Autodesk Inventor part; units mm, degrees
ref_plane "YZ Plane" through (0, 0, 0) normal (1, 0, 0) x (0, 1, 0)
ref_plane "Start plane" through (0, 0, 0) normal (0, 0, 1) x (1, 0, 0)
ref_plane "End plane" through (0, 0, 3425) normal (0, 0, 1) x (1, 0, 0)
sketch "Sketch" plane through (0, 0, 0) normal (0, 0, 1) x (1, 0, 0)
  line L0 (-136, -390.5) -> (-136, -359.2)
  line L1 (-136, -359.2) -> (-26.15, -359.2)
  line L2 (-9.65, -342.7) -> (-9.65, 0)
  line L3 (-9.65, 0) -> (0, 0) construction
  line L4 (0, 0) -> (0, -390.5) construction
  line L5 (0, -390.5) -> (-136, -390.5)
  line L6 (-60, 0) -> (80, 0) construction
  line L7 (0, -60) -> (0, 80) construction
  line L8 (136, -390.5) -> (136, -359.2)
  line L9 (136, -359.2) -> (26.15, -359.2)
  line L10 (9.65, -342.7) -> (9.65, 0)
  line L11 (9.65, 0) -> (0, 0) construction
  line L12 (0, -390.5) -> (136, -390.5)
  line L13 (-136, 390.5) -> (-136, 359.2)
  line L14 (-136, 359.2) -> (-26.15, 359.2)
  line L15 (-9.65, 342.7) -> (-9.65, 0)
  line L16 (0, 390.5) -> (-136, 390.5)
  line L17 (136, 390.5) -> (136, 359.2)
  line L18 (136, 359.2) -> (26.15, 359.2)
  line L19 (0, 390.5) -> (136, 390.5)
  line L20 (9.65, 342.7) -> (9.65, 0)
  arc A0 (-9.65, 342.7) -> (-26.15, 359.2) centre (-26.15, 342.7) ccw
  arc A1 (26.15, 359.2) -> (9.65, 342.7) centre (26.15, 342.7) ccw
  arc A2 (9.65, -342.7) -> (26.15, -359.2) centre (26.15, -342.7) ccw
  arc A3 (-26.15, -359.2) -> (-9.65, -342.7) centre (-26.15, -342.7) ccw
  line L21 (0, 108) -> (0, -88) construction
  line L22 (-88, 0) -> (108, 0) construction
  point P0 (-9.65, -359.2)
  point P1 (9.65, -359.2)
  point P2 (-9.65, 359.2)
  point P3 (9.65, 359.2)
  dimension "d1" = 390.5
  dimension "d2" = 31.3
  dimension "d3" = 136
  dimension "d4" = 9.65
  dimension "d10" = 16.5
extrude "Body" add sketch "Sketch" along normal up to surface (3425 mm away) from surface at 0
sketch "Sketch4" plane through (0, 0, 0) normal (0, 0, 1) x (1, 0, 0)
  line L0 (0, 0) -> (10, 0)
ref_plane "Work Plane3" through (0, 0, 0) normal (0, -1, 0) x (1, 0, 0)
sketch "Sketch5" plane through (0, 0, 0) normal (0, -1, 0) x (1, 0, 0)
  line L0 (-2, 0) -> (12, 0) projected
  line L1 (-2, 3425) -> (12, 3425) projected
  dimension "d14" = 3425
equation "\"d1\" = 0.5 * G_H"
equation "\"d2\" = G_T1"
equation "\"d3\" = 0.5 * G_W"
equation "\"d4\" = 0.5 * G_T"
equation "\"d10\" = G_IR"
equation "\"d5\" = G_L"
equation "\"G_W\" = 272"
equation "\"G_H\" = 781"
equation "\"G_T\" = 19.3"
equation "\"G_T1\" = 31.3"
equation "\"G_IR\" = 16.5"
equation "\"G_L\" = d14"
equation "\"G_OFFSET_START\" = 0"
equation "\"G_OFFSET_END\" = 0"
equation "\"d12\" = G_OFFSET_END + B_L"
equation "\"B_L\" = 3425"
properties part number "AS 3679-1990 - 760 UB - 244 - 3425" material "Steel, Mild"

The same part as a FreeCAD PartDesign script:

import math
import FreeCAD as App
import Part
import Sketcher
from FreeCAD import Vector
Q = App.Units.Quantity

doc = App.newDocument("Part")
body = doc.addObject("PartDesign::Body", "Body")

# Sketch on XY plane
sketch1 = body.newObject("Sketcher::SketchObject", "Sketch")
sketch1.AttachmentSupport = (doc.getObject("XY_Plane"), [""])
sketch1.MapMode = "FlatFace"
sketch1.addGeometry([
    Part.LineSegment(Vector(-136, -359.2, 0), Vector(-136, -390.5, 0)),  # 0
    Part.LineSegment(Vector(-136, -390.5, 0), Vector(136, -390.5, 0)),  # 1
    Part.LineSegment(Vector(136, -390.5, 0), Vector(136, -359.2, 0)),  # 2
    Part.LineSegment(Vector(136, -359.2, 0), Vector(26.15, -359.2, 0)),  # 3
    Part.ArcOfCircle(Part.Circle(Vector(26.15, -342.7, 0), Vector(0, 0, 1), 16.5), math.radians(180), math.radians(270)),  # 4
    Part.LineSegment(Vector(9.65, -342.7, 0), Vector(9.65, 342.7, 0)),  # 5
    Part.ArcOfCircle(Part.Circle(Vector(26.15, 342.7, 0), Vector(0, 0, 1), 16.5), math.radians(90), math.radians(180)),  # 6
    Part.LineSegment(Vector(26.15, 359.2, 0), Vector(136, 359.2, 0)),  # 7
    Part.LineSegment(Vector(136, 359.2, 0), Vector(136, 390.5, 0)),  # 8
    Part.LineSegment(Vector(136, 390.5, 0), Vector(-136, 390.5, 0)),  # 9
    Part.LineSegment(Vector(-136, 390.5, 0), Vector(-136, 359.2, 0)),  # 10
    Part.LineSegment(Vector(-136, 359.2, 0), Vector(-26.15, 359.2, 0)),  # 11
    Part.ArcOfCircle(Part.Circle(Vector(-26.15, 342.7, 0), Vector(0, 0, 1), 16.5), math.radians(0), math.radians(90)),  # 12
    Part.LineSegment(Vector(-9.65, 342.7, 0), Vector(-9.65, -342.7, 0)),  # 13
    Part.ArcOfCircle(Part.Circle(Vector(-26.15, -342.7, 0), Vector(0, 0, 1), 16.5), math.radians(-90), math.radians(0)),  # 14
    Part.LineSegment(Vector(-26.15, -359.2, 0), Vector(-136, -359.2, 0)),  # 15
], False)
sketch1.addConstraint([
    Sketcher.Constraint("Coincident", 0, 2, 1, 1),
    Sketcher.Constraint("Coincident", 1, 2, 2, 1),
    Sketcher.Constraint("Coincident", 2, 2, 3, 1),
    Sketcher.Constraint("Tangent", 3, 2, 4, 2),
    Sketcher.Constraint("Tangent", 4, 1, 5, 1),
    Sketcher.Constraint("Tangent", 5, 2, 6, 2),
    Sketcher.Constraint("Tangent", 6, 1, 7, 1),
    Sketcher.Constraint("Coincident", 7, 2, 8, 1),
    Sketcher.Constraint("Coincident", 8, 2, 9, 1),
    Sketcher.Constraint("Coincident", 9, 2, 10, 1),
    Sketcher.Constraint("Coincident", 10, 2, 11, 1),
    Sketcher.Constraint("Tangent", 11, 2, 12, 2),
    Sketcher.Constraint("Tangent", 12, 1, 13, 1),
    Sketcher.Constraint("Tangent", 13, 2, 14, 2),
    Sketcher.Constraint("Tangent", 14, 1, 15, 1),
    Sketcher.Constraint("Coincident", 15, 2, 0, 1),
    Sketcher.Constraint("Vertical", 0),
    Sketcher.Constraint("Horizontal", 1),
    Sketcher.Constraint("Vertical", 2),
    Sketcher.Constraint("Horizontal", 3),
    Sketcher.Constraint("Vertical", 5),
    Sketcher.Constraint("Horizontal", 7),
    Sketcher.Constraint("Vertical", 8),
    Sketcher.Constraint("Horizontal", 9),
    Sketcher.Constraint("Vertical", 10),
    Sketcher.Constraint("Horizontal", 11),
    Sketcher.Constraint("Vertical", 13),
    Sketcher.Constraint("Horizontal", 15),
    Sketcher.Constraint("Equal", 4, 6),
    Sketcher.Constraint("Equal", 6, 12),
    Sketcher.Constraint("Equal", 12, 14),
    Sketcher.Constraint("Symmetric", 4, 3, 12, 3, -1, 1),
    Sketcher.Constraint("Symmetric", 0, 2, 8, 2, -1, 1),
    Sketcher.Constraint("Symmetric", 7, 2, 10, 2, -2),
    Sketcher.Constraint("Symmetric", 2, 2, 15, 2, -2),
    Sketcher.Constraint("Radius", 4, Q("16.5 mm")),
    Sketcher.Constraint("DistanceY", 0, 2, 0, 1, Q("31.3 mm")),
    Sketcher.Constraint("DistanceX", 0, 2, -1, 1, Q("136 mm")),
    Sketcher.Constraint("DistanceY", 0, 2, -1, 1, Q("390.5 mm")),
    Sketcher.Constraint("DistanceX", -1, 1, 4, 1, Q("9.65 mm")),
])
pad1 = body.newObject("PartDesign::Pad", "Pad")
pad1.Profile = sketch1
pad1.Length = 3425

doc.recompute()
